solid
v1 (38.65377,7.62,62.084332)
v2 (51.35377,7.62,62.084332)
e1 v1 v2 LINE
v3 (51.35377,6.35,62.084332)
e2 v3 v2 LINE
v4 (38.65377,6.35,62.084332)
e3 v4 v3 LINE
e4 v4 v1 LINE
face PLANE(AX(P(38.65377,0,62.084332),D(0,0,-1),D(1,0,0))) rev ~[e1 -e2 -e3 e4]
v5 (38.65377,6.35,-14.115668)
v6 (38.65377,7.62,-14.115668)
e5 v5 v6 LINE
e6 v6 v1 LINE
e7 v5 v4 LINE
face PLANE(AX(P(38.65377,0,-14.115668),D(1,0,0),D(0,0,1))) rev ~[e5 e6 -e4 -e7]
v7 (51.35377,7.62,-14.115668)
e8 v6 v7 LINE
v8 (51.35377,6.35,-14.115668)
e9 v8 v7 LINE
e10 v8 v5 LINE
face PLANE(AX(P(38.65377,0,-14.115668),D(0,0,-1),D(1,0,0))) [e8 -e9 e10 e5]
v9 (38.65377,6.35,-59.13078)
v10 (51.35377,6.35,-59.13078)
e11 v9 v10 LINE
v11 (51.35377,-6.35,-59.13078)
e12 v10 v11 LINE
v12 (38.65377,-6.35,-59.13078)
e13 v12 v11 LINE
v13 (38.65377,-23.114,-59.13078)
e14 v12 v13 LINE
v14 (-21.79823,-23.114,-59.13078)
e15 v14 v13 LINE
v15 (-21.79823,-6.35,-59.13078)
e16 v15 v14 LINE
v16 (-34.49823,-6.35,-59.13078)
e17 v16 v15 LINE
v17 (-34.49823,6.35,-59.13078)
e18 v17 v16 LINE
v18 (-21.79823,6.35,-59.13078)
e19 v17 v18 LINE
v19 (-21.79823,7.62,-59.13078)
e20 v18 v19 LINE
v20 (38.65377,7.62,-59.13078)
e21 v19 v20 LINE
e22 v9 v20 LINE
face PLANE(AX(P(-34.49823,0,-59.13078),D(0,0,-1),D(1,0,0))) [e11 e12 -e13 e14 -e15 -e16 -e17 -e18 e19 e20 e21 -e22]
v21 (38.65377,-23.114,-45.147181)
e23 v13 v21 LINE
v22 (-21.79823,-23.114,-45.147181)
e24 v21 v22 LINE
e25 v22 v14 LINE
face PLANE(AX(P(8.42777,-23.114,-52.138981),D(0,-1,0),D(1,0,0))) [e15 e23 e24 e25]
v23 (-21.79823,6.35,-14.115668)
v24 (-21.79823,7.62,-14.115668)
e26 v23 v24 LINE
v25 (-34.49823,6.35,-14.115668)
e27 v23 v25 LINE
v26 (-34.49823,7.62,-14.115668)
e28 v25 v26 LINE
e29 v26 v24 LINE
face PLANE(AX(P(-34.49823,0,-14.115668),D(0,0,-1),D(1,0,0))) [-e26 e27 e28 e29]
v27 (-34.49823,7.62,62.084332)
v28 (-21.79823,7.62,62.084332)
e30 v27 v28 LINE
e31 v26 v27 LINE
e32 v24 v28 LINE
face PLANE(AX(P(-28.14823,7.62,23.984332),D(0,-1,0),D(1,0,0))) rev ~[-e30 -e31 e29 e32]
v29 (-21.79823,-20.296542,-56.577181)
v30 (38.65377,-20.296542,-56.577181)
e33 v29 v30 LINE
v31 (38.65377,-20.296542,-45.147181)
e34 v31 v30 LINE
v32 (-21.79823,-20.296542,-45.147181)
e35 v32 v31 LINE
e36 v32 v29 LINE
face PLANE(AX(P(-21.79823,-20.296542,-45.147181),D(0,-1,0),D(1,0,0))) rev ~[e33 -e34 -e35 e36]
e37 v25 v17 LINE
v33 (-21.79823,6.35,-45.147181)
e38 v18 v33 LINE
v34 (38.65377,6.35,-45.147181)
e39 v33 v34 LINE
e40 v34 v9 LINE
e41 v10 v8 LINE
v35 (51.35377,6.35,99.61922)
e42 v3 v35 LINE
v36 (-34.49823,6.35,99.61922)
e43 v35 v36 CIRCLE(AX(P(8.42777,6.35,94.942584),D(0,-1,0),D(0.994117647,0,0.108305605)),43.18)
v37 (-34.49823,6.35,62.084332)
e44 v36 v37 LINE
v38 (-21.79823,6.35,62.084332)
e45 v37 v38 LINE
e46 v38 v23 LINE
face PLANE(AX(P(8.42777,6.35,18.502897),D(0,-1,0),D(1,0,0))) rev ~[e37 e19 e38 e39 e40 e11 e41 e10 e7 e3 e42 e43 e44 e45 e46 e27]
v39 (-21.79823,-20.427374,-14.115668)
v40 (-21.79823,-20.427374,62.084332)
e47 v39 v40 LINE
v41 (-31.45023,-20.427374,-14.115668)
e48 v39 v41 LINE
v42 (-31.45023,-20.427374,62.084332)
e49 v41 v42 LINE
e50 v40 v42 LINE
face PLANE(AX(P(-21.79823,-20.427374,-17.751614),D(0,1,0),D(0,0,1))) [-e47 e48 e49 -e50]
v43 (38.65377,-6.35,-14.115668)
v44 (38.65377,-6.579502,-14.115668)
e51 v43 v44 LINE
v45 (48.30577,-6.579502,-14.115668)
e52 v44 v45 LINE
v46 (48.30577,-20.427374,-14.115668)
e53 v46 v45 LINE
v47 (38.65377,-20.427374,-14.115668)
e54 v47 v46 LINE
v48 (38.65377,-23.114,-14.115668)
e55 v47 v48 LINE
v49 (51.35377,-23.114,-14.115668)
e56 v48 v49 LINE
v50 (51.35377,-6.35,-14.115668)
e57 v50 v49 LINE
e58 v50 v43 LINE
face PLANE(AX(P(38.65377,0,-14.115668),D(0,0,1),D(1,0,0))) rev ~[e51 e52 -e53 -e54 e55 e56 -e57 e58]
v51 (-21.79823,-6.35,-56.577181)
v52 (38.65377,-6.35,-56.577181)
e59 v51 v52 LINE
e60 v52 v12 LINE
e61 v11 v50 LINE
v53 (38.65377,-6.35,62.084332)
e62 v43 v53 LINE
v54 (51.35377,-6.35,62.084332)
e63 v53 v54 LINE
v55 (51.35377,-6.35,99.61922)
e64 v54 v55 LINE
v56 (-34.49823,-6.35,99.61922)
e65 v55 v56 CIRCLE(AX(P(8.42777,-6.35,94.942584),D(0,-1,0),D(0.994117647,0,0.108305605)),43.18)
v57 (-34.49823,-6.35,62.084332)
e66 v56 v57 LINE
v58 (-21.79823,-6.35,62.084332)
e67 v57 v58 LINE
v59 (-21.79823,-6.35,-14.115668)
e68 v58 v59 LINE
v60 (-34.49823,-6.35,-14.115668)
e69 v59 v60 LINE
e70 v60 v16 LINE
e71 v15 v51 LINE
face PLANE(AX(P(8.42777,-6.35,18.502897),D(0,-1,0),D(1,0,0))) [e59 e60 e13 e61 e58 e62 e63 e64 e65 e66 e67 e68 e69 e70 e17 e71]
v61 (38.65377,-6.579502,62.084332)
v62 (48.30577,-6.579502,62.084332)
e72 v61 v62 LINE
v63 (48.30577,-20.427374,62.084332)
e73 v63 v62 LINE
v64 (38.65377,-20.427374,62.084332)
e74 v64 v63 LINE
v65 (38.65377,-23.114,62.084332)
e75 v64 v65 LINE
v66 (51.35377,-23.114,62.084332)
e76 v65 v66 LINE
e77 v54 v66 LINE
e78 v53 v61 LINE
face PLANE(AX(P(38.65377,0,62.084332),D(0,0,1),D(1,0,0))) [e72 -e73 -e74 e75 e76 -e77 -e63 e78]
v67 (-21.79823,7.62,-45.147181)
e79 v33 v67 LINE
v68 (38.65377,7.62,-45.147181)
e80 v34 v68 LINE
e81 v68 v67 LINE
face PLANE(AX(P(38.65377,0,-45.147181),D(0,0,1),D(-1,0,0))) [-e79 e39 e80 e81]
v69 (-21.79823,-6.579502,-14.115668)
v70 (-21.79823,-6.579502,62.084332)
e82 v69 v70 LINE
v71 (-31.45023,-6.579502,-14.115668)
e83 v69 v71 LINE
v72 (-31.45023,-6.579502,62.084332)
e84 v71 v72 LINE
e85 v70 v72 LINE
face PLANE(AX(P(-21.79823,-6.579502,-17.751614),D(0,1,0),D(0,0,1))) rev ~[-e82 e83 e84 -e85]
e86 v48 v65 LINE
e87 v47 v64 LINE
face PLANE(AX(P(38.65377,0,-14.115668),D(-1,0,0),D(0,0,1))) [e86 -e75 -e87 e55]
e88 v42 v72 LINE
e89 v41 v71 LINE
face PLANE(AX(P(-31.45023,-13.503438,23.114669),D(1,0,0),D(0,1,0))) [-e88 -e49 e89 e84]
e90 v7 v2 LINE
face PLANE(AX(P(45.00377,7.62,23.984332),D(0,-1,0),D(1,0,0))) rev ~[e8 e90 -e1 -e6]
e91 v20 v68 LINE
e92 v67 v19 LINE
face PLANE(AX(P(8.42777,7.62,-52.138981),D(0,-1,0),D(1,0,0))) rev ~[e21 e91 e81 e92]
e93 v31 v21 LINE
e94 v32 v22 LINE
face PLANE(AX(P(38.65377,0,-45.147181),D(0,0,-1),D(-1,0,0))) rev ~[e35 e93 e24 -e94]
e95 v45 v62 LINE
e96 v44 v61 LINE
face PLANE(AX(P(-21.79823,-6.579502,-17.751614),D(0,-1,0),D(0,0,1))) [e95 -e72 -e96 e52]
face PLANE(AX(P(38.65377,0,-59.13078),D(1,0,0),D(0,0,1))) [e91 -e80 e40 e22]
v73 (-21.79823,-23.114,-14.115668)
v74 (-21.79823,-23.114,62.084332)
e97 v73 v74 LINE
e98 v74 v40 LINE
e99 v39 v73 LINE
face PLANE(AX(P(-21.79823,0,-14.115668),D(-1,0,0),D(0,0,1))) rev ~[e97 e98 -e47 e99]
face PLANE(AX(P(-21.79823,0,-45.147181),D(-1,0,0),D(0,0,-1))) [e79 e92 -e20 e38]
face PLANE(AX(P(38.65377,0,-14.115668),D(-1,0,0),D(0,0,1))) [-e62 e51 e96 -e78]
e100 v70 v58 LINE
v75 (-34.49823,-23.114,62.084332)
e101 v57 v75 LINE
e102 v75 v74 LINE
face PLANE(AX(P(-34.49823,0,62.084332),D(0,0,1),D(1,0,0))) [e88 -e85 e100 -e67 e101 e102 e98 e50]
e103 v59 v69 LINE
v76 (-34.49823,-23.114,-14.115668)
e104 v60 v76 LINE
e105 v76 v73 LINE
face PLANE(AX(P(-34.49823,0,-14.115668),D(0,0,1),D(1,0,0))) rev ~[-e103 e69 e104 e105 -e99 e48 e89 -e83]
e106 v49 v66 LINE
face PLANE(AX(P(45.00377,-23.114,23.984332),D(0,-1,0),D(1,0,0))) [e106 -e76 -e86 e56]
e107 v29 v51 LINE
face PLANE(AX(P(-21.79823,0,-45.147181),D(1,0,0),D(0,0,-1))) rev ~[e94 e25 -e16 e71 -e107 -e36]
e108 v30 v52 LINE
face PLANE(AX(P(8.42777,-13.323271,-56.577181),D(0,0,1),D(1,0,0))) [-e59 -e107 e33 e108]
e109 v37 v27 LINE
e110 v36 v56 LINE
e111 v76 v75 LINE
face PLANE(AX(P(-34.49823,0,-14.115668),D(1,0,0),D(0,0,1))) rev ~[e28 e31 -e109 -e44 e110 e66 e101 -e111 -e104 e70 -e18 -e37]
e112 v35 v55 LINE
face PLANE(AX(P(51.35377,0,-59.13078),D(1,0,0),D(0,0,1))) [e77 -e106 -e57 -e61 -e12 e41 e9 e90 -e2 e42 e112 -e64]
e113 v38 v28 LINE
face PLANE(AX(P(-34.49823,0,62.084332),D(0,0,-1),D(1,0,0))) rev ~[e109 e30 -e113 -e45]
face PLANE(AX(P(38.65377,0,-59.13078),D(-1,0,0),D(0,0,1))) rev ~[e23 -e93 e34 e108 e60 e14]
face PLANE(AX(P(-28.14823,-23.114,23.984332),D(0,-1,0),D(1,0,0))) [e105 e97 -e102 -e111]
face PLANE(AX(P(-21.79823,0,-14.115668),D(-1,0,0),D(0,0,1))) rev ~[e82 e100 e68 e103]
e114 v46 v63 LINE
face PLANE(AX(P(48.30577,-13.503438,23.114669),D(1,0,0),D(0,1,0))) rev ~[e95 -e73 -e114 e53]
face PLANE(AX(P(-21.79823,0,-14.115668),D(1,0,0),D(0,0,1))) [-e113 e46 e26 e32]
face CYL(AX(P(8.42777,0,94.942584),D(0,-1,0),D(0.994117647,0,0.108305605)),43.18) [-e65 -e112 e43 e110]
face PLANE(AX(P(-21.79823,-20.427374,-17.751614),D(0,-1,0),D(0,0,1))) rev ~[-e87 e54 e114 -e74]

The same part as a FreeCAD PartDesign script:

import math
import FreeCAD as App
import Part
import Sketcher

V = App.Vector
Q = App.Units.Quantity

doc = App.newDocument("Part")
body = doc.addObject("PartDesign::Body", "Body")

# Sketch on XZ plane
sketch1 = doc.addObject("Sketcher::SketchObject", "Sketch")
body.addObject(sketch1)
sketch1.AttachmentSupport = (doc.XZ_Plane, [""])
sketch1.MapMode = "FlatFace"
sketch1.addGeometry([
    Part.LineSegment(V(38.65377, -59.13078, 0), V(51.35377, -59.13078, 0)),  # 0
    Part.LineSegment(V(51.35377, -59.13078, 0), V(51.35377, -14.115668, 0)),  # 1
    Part.LineSegment(V(51.35377, -14.115668, 0), V(38.65377, -14.115668, 0)),  # 2
    Part.LineSegment(V(38.65377, -14.115668, 0), V(38.65377, 62.084332, 0)),  # 3
    Part.LineSegment(V(38.65377, 62.084332, 0), V(51.35377, 62.084332, 0)),  # 4
    Part.LineSegment(V(51.35377, 62.084332, 0), V(51.35377, 99.61922, 0)),  # 5
    Part.ArcOfCircle(Part.Circle(V(8.42777, 94.942584, 0), V(0, 0, 1), 43.18), math.radians(6.21765), math.radians(173.78235)),  # 6
    Part.LineSegment(V(-34.49823, 99.61922, 0), V(-34.49823, 62.084332, 0)),  # 7
    Part.LineSegment(V(-34.49823, 62.084332, 0), V(-21.79823, 62.084332, 0)),  # 8
    Part.LineSegment(V(-21.79823, 62.084332, 0), V(-21.79823, -14.115668, 0)),  # 9
    Part.LineSegment(V(-21.79823, -14.115668, 0), V(-34.49823, -14.115668, 0)),  # 10
    Part.LineSegment(V(-34.49823, -14.115668, 0), V(-34.49823, -59.13078, 0)),  # 11
    Part.LineSegment(V(-34.49823, -59.13078, 0), V(-21.79823, -59.13078, 0)),  # 12
    Part.LineSegment(V(-21.79823, -59.13078, 0), V(-21.79823, -45.147181, 0)),  # 13
    Part.LineSegment(V(-21.79823, -45.147181, 0), V(38.65377, -45.147181, 0)),  # 14
    Part.LineSegment(V(38.65377, -45.147181, 0), V(38.65377, -59.13078, 0)),  # 15
], False)
sketch1.addConstraint([
    Sketcher.Constraint("Coincident", 0, 2, 1, 1),
    Sketcher.Constraint("Coincident", 1, 2, 2, 1),
    Sketcher.Constraint("Coincident", 2, 2, 3, 1),
    Sketcher.Constraint("Coincident", 3, 2, 4, 1),
    Sketcher.Constraint("Coincident", 4, 2, 5, 1),
    Sketcher.Constraint("Coincident", 5, 2, 6, 1),
    Sketcher.Constraint("Coincident", 6, 2, 7, 1),
    Sketcher.Constraint("Coincident", 7, 2, 8, 1),
    Sketcher.Constraint("Coincident", 8, 2, 9, 1),
    Sketcher.Constraint("Coincident", 9, 2, 10, 1),
    Sketcher.Constraint("Coincident", 10, 2, 11, 1),
    Sketcher.Constraint("Coincident", 11, 2, 12, 1),
    Sketcher.Constraint("Coincident", 12, 2, 13, 1),
    Sketcher.Constraint("Coincident", 13, 2, 14, 1),
    Sketcher.Constraint("Coincident", 14, 2, 15, 1),
    Sketcher.Constraint("Coincident", 15, 2, 0, 1),
    Sketcher.Constraint("Horizontal", 0),
    Sketcher.Constraint("Vertical", 1),
    Sketcher.Constraint("Horizontal", 2),
    Sketcher.Constraint("Vertical", 3),
    Sketcher.Constraint("Horizontal", 4),
    Sketcher.Constraint("Vertical", 5),
    Sketcher.Constraint("Vertical", 7),
    Sketcher.Constraint("Horizontal", 8),
    Sketcher.Constraint("Vertical", 9),
    Sketcher.Constraint("Horizontal", 10),
    Sketcher.Constraint("Vertical", 11),
    Sketcher.Constraint("Horizontal", 12),
    Sketcher.Constraint("Vertical", 13),
    Sketcher.Constraint("Horizontal", 14),
    Sketcher.Constraint("Vertical", 15),
    Sketcher.Constraint("Horizontal", 5, 2, 6, 2),
    Sketcher.Constraint("Horizontal", 4, 2, 7, 2),
    Sketcher.Constraint("Horizontal", 2, 2, 9, 2),
    Sketcher.Constraint("Horizontal", 0, 2, 11, 2),
    Sketcher.Constraint("Vertical", 1, 2, 4, 2),
    Sketcher.Constraint("Vertical", 7, 2, 10, 2),
    Sketcher.Constraint("Vertical", 9, 2, 12, 2),
    Sketcher.Constraint("Vertical", 3, 2, 14, 2),
    Sketcher.Constraint("Equal", 4, 8),
    Sketcher.Constraint("Radius", 6, Q("1.7 in")),
    Sketcher.Constraint("DistanceY", 3, 1, 3, 2, Q("3 in")),
    Sketcher.Constraint("DistanceX", 0, 1, 0, 2, Q("0.5 in")),
    Sketcher.Constraint("DistanceX", 14, 1, 14, 2, Q("2.38 in")),
    Sketcher.Constraint("DistanceY", 13, 1, 13, 2, 13.983599),
    Sketcher.Constraint("DistanceY", 1, 1, 1, 2, 45.015112),
    Sketcher.Constraint("DistanceY", 5, 1, 5, 2, 37.534888),
    Sketcher.Constraint("DistanceX", -1, 1, 6, 3, 8.42777),
    Sketcher.Constraint("DistanceY", 0, 2, -1, 1, 59.13078),
])
pad1 = doc.addObject("PartDesign::Pad", "Pad")
body.addObject(pad1)
pad1.Profile = sketch1
pad1.Length = Q("0.5 in")
pad1.Midplane = True

# Sketch on XZ plane
sketch2 = doc.addObject("Sketcher::SketchObject", "Sketch001")
body.addObject(sketch2)
sketch2.AttachmentSupport = (doc.XZ_Plane, [""])
sketch2.MapMode = "FlatFace"
sketch2.addGeometry([
    Part.LineSegment(V(-34.49823, 62.084332, 0), V(-34.49823, -14.115668, 0)),  # 0
    Part.LineSegment(V(-34.49823, -14.115668, 0), V(-21.79823, -14.115668, 0)),  # 1
    Part.LineSegment(V(-21.79823, -14.115668, 0), V(-21.79823, 62.084332, 0)),  # 2
    Part.LineSegment(V(-21.79823, 62.084332, 0), V(-34.49823, 62.084332, 0)),  # 3
    Part.LineSegment(V(38.65377, 62.084332, 0), V(38.65377, -14.115668, 0)),  # 4
    Part.LineSegment(V(38.65377, -14.115668, 0), V(51.35377, -14.115668, 0)),  # 5
    Part.LineSegment(V(51.35377, -14.115668, 0), V(51.35377, 62.084332, 0)),  # 6
    Part.LineSegment(V(51.35377, 62.084332, 0), V(38.65377, 62.084332, 0)),  # 7
    Part.LineSegment(V(38.65377, -59.13078, 0), V(38.65377, -45.147181, 0)),  # 8
    Part.LineSegment(V(38.65377, -45.147181, 0), V(-21.79823, -45.147181, 0)),  # 9
    Part.LineSegment(V(-21.79823, -45.147181, 0), V(-21.79823, -59.13078, 0)),  # 10
    Part.LineSegment(V(-21.79823, -59.13078, 0), V(38.65377, -59.13078, 0)),  # 11
], False)
sketch2.addConstraint([
    Sketcher.Constraint("Coincident", 0, 2, 1, 1),
    Sketcher.Constraint("Coincident", 1, 2, 2, 1),
    Sketcher.Constraint("Coincident", 2, 2, 3, 1),
    Sketcher.Constraint("Coincident", 3, 2, 0, 1),
    Sketcher.Constraint("Coincident", 4, 2, 5, 1),
    Sketcher.Constraint("Coincident", 5, 2, 6, 1),
    Sketcher.Constraint("Coincident", 6, 2, 7, 1),
    Sketcher.Constraint("Coincident", 7, 2, 4, 1),
    Sketcher.Constraint("Coincident", 8, 2, 9, 1),
    Sketcher.Constraint("Coincident", 9, 2, 10, 1),
    Sketcher.Constraint("Coincident", 10, 2, 11, 1),
    Sketcher.Constraint("Coincident", 11, 2, 8, 1),
    Sketcher.Constraint("Vertical", 0),
    Sketcher.Constraint("Horizontal", 1),
    Sketcher.Constraint("Vertical", 2),
    Sketcher.Constraint("Horizontal", 3),
    Sketcher.Constraint("Vertical", 4),
    Sketcher.Constraint("Horizontal", 5),
    Sketcher.Constraint("Vertical", 6),
    Sketcher.Constraint("Horizontal", 7),
    Sketcher.Constraint("Vertical", 8),
    Sketcher.Constraint("Horizontal", 9),
    Sketcher.Constraint("Vertical", 10),
    Sketcher.Constraint("Horizontal", 11),
    Sketcher.Constraint("Horizontal", 1, 2, 4, 2),
    Sketcher.Constraint("Horizontal", 3, 2, 6, 2),
    Sketcher.Constraint("Vertical", 7, 2, 8, 2),
    Sketcher.Constraint("Vertical", 2, 2, 9, 2),
    Sketcher.Constraint("Equal", 3, 5),
    Sketcher.Constraint("DistanceY", 0, 2, 0, 1, Q("3 in")),
    Sketcher.Constraint("DistanceX", 1, 1, 1, 2, Q("0.5 in")),
    Sketcher.Constraint("DistanceX", 9, 2, 9, 1, Q("2.38 in")),
    Sketcher.Constraint("DistanceY", 8, 1, 8, 2, 13.983599),
    Sketcher.Constraint("DistanceX", 0, 2, -1, 1, 34.49823),
    Sketcher.Constraint("DistanceY", 8, 2, -1, 1, 45.147181),
    Sketcher.Constraint("DistanceY", 0, 2, -1, 1, 14.115668),
])
pad2 = doc.addObject("PartDesign::Pad", "Pad001")
body.addObject(pad2)
pad2.Profile = sketch2
pad2.Type = "TwoLengths"
pad2.Length = Q("0.91 in")
pad2.Length2 = Q("0.3 in")

# Sketch on YZ plane
sketch3 = doc.addObject("Sketcher::SketchObject", "Sketch002")
body.addObject(sketch3)
sketch3.AttachmentSupport = (doc.YZ_Plane, [""])
sketch3.MapMode = "FlatFace"
sketch3.AttachmentOffset = App.Placement(V(0, 0, -21.79823), App.Rotation())
sketch3.addGeometry([
    Part.LineSegment(V(-20.427374, 63.980952, 0), V(-20.427374, -17.751614, 0)),
    Part.LineSegment(V(-20.427374, -17.751614, 0), V(-6.579502, -17.751614, 0)),
    Part.LineSegment(V(-6.579502, -17.751614, 0), V(-6.579502, 63.980952, 0)),
    Part.LineSegment(V(-6.579502, 63.980952, 0), V(-20.427374, 63.980952, 0)),
], False)
sketch3.addConstraint([
    Sketcher.Constraint("Coincident", 0, 2, 1, 1),
    Sketcher.Constraint("Coincident", 1, 2, 2, 1),
    Sketcher.Constraint("Coincident", 2, 2, 3, 1),
    Sketcher.Constraint("Coincident", 3, 2, 0, 1),
    Sketcher.Constraint("Vertical", 0),
    Sketcher.Constraint("Horizontal", 1),
    Sketcher.Constraint("Vertical", 2),
    Sketcher.Constraint("Horizontal", 3),
    Sketcher.Constraint("DistanceX", 1, 2, -1, 1, 6.579502),
    Sketcher.Constraint("DistanceX", 1, 1, 1, 2, 13.847873),
    Sketcher.Constraint("DistanceY", 0, 2, 0, 1, 81.732566),
    Sketcher.Constraint("DistanceY", 0, 2, -1, 1, 17.751614),
])
pocket1 = doc.addObject("PartDesign::Pocket", "Pocket")
body.addObject(pocket1)
pocket1.Profile = sketch3
pocket1.Type = "TwoLengths"
pocket1.Length = Q("2.76 in")
pocket1.Length2 = Q("0.38 in")
pocket1.Reversed = True

# Sketch on XY plane
sketch4 = doc.addObject("Sketcher::SketchObject", "Sketch003")
body.addObject(sketch4)
sketch4.AttachmentSupport = (doc.XY_Plane, [""])
sketch4.MapMode = "FlatFace"
sketch4.AttachmentOffset = App.Placement(V(0, 0, -45.147181), App.Rotation())
sketch4.addGeometry([
    Part.LineSegment(V(-21.79823, -6.35, 0), V(-21.79823, -20.296542, 0)),
    Part.LineSegment(V(-21.79823, -20.296542, 0), V(38.65377, -20.296542, 0)),
    Part.LineSegment(V(38.65377, -20.296542, 0), V(38.65377, -6.35, 0)),
    Part.LineSegment(V(38.65377, -6.35, 0), V(-21.79823, -6.35, 0)),
], False)
sketch4.addConstraint([
    Sketcher.Constraint("Coincident", 0, 2, 1, 1),
    Sketcher.Constraint("Coincident", 1, 2, 2, 1),
    Sketcher.Constraint("Coincident", 2, 2, 3, 1),
    Sketcher.Constraint("Coincident", 3, 2, 0, 1),
    Sketcher.Constraint("Vertical", 0),
    Sketcher.Constraint("Horizontal", 1),
    Sketcher.Constraint("Vertical", 2),
    Sketcher.Constraint("Horizontal", 3),
    Sketcher.Constraint("DistanceX", 1, 1, 1, 2, Q("2.38 in")),
    Sketcher.Constraint("DistanceY", 2, 2, -1, 1, Q("0.25 in")),
    Sketcher.Constraint("DistanceY", 0, 2, 0, 1, 13.946542),
    Sketcher.Constraint("DistanceX", 0, 2, -1, 1, 21.79823),
])
pocket2 = doc.addObject("PartDesign::Pocket", "Pocket001")
body.addObject(pocket2)
pocket2.Profile = sketch4
pocket2.Length = Q("0.45 in")

doc.recompute()
